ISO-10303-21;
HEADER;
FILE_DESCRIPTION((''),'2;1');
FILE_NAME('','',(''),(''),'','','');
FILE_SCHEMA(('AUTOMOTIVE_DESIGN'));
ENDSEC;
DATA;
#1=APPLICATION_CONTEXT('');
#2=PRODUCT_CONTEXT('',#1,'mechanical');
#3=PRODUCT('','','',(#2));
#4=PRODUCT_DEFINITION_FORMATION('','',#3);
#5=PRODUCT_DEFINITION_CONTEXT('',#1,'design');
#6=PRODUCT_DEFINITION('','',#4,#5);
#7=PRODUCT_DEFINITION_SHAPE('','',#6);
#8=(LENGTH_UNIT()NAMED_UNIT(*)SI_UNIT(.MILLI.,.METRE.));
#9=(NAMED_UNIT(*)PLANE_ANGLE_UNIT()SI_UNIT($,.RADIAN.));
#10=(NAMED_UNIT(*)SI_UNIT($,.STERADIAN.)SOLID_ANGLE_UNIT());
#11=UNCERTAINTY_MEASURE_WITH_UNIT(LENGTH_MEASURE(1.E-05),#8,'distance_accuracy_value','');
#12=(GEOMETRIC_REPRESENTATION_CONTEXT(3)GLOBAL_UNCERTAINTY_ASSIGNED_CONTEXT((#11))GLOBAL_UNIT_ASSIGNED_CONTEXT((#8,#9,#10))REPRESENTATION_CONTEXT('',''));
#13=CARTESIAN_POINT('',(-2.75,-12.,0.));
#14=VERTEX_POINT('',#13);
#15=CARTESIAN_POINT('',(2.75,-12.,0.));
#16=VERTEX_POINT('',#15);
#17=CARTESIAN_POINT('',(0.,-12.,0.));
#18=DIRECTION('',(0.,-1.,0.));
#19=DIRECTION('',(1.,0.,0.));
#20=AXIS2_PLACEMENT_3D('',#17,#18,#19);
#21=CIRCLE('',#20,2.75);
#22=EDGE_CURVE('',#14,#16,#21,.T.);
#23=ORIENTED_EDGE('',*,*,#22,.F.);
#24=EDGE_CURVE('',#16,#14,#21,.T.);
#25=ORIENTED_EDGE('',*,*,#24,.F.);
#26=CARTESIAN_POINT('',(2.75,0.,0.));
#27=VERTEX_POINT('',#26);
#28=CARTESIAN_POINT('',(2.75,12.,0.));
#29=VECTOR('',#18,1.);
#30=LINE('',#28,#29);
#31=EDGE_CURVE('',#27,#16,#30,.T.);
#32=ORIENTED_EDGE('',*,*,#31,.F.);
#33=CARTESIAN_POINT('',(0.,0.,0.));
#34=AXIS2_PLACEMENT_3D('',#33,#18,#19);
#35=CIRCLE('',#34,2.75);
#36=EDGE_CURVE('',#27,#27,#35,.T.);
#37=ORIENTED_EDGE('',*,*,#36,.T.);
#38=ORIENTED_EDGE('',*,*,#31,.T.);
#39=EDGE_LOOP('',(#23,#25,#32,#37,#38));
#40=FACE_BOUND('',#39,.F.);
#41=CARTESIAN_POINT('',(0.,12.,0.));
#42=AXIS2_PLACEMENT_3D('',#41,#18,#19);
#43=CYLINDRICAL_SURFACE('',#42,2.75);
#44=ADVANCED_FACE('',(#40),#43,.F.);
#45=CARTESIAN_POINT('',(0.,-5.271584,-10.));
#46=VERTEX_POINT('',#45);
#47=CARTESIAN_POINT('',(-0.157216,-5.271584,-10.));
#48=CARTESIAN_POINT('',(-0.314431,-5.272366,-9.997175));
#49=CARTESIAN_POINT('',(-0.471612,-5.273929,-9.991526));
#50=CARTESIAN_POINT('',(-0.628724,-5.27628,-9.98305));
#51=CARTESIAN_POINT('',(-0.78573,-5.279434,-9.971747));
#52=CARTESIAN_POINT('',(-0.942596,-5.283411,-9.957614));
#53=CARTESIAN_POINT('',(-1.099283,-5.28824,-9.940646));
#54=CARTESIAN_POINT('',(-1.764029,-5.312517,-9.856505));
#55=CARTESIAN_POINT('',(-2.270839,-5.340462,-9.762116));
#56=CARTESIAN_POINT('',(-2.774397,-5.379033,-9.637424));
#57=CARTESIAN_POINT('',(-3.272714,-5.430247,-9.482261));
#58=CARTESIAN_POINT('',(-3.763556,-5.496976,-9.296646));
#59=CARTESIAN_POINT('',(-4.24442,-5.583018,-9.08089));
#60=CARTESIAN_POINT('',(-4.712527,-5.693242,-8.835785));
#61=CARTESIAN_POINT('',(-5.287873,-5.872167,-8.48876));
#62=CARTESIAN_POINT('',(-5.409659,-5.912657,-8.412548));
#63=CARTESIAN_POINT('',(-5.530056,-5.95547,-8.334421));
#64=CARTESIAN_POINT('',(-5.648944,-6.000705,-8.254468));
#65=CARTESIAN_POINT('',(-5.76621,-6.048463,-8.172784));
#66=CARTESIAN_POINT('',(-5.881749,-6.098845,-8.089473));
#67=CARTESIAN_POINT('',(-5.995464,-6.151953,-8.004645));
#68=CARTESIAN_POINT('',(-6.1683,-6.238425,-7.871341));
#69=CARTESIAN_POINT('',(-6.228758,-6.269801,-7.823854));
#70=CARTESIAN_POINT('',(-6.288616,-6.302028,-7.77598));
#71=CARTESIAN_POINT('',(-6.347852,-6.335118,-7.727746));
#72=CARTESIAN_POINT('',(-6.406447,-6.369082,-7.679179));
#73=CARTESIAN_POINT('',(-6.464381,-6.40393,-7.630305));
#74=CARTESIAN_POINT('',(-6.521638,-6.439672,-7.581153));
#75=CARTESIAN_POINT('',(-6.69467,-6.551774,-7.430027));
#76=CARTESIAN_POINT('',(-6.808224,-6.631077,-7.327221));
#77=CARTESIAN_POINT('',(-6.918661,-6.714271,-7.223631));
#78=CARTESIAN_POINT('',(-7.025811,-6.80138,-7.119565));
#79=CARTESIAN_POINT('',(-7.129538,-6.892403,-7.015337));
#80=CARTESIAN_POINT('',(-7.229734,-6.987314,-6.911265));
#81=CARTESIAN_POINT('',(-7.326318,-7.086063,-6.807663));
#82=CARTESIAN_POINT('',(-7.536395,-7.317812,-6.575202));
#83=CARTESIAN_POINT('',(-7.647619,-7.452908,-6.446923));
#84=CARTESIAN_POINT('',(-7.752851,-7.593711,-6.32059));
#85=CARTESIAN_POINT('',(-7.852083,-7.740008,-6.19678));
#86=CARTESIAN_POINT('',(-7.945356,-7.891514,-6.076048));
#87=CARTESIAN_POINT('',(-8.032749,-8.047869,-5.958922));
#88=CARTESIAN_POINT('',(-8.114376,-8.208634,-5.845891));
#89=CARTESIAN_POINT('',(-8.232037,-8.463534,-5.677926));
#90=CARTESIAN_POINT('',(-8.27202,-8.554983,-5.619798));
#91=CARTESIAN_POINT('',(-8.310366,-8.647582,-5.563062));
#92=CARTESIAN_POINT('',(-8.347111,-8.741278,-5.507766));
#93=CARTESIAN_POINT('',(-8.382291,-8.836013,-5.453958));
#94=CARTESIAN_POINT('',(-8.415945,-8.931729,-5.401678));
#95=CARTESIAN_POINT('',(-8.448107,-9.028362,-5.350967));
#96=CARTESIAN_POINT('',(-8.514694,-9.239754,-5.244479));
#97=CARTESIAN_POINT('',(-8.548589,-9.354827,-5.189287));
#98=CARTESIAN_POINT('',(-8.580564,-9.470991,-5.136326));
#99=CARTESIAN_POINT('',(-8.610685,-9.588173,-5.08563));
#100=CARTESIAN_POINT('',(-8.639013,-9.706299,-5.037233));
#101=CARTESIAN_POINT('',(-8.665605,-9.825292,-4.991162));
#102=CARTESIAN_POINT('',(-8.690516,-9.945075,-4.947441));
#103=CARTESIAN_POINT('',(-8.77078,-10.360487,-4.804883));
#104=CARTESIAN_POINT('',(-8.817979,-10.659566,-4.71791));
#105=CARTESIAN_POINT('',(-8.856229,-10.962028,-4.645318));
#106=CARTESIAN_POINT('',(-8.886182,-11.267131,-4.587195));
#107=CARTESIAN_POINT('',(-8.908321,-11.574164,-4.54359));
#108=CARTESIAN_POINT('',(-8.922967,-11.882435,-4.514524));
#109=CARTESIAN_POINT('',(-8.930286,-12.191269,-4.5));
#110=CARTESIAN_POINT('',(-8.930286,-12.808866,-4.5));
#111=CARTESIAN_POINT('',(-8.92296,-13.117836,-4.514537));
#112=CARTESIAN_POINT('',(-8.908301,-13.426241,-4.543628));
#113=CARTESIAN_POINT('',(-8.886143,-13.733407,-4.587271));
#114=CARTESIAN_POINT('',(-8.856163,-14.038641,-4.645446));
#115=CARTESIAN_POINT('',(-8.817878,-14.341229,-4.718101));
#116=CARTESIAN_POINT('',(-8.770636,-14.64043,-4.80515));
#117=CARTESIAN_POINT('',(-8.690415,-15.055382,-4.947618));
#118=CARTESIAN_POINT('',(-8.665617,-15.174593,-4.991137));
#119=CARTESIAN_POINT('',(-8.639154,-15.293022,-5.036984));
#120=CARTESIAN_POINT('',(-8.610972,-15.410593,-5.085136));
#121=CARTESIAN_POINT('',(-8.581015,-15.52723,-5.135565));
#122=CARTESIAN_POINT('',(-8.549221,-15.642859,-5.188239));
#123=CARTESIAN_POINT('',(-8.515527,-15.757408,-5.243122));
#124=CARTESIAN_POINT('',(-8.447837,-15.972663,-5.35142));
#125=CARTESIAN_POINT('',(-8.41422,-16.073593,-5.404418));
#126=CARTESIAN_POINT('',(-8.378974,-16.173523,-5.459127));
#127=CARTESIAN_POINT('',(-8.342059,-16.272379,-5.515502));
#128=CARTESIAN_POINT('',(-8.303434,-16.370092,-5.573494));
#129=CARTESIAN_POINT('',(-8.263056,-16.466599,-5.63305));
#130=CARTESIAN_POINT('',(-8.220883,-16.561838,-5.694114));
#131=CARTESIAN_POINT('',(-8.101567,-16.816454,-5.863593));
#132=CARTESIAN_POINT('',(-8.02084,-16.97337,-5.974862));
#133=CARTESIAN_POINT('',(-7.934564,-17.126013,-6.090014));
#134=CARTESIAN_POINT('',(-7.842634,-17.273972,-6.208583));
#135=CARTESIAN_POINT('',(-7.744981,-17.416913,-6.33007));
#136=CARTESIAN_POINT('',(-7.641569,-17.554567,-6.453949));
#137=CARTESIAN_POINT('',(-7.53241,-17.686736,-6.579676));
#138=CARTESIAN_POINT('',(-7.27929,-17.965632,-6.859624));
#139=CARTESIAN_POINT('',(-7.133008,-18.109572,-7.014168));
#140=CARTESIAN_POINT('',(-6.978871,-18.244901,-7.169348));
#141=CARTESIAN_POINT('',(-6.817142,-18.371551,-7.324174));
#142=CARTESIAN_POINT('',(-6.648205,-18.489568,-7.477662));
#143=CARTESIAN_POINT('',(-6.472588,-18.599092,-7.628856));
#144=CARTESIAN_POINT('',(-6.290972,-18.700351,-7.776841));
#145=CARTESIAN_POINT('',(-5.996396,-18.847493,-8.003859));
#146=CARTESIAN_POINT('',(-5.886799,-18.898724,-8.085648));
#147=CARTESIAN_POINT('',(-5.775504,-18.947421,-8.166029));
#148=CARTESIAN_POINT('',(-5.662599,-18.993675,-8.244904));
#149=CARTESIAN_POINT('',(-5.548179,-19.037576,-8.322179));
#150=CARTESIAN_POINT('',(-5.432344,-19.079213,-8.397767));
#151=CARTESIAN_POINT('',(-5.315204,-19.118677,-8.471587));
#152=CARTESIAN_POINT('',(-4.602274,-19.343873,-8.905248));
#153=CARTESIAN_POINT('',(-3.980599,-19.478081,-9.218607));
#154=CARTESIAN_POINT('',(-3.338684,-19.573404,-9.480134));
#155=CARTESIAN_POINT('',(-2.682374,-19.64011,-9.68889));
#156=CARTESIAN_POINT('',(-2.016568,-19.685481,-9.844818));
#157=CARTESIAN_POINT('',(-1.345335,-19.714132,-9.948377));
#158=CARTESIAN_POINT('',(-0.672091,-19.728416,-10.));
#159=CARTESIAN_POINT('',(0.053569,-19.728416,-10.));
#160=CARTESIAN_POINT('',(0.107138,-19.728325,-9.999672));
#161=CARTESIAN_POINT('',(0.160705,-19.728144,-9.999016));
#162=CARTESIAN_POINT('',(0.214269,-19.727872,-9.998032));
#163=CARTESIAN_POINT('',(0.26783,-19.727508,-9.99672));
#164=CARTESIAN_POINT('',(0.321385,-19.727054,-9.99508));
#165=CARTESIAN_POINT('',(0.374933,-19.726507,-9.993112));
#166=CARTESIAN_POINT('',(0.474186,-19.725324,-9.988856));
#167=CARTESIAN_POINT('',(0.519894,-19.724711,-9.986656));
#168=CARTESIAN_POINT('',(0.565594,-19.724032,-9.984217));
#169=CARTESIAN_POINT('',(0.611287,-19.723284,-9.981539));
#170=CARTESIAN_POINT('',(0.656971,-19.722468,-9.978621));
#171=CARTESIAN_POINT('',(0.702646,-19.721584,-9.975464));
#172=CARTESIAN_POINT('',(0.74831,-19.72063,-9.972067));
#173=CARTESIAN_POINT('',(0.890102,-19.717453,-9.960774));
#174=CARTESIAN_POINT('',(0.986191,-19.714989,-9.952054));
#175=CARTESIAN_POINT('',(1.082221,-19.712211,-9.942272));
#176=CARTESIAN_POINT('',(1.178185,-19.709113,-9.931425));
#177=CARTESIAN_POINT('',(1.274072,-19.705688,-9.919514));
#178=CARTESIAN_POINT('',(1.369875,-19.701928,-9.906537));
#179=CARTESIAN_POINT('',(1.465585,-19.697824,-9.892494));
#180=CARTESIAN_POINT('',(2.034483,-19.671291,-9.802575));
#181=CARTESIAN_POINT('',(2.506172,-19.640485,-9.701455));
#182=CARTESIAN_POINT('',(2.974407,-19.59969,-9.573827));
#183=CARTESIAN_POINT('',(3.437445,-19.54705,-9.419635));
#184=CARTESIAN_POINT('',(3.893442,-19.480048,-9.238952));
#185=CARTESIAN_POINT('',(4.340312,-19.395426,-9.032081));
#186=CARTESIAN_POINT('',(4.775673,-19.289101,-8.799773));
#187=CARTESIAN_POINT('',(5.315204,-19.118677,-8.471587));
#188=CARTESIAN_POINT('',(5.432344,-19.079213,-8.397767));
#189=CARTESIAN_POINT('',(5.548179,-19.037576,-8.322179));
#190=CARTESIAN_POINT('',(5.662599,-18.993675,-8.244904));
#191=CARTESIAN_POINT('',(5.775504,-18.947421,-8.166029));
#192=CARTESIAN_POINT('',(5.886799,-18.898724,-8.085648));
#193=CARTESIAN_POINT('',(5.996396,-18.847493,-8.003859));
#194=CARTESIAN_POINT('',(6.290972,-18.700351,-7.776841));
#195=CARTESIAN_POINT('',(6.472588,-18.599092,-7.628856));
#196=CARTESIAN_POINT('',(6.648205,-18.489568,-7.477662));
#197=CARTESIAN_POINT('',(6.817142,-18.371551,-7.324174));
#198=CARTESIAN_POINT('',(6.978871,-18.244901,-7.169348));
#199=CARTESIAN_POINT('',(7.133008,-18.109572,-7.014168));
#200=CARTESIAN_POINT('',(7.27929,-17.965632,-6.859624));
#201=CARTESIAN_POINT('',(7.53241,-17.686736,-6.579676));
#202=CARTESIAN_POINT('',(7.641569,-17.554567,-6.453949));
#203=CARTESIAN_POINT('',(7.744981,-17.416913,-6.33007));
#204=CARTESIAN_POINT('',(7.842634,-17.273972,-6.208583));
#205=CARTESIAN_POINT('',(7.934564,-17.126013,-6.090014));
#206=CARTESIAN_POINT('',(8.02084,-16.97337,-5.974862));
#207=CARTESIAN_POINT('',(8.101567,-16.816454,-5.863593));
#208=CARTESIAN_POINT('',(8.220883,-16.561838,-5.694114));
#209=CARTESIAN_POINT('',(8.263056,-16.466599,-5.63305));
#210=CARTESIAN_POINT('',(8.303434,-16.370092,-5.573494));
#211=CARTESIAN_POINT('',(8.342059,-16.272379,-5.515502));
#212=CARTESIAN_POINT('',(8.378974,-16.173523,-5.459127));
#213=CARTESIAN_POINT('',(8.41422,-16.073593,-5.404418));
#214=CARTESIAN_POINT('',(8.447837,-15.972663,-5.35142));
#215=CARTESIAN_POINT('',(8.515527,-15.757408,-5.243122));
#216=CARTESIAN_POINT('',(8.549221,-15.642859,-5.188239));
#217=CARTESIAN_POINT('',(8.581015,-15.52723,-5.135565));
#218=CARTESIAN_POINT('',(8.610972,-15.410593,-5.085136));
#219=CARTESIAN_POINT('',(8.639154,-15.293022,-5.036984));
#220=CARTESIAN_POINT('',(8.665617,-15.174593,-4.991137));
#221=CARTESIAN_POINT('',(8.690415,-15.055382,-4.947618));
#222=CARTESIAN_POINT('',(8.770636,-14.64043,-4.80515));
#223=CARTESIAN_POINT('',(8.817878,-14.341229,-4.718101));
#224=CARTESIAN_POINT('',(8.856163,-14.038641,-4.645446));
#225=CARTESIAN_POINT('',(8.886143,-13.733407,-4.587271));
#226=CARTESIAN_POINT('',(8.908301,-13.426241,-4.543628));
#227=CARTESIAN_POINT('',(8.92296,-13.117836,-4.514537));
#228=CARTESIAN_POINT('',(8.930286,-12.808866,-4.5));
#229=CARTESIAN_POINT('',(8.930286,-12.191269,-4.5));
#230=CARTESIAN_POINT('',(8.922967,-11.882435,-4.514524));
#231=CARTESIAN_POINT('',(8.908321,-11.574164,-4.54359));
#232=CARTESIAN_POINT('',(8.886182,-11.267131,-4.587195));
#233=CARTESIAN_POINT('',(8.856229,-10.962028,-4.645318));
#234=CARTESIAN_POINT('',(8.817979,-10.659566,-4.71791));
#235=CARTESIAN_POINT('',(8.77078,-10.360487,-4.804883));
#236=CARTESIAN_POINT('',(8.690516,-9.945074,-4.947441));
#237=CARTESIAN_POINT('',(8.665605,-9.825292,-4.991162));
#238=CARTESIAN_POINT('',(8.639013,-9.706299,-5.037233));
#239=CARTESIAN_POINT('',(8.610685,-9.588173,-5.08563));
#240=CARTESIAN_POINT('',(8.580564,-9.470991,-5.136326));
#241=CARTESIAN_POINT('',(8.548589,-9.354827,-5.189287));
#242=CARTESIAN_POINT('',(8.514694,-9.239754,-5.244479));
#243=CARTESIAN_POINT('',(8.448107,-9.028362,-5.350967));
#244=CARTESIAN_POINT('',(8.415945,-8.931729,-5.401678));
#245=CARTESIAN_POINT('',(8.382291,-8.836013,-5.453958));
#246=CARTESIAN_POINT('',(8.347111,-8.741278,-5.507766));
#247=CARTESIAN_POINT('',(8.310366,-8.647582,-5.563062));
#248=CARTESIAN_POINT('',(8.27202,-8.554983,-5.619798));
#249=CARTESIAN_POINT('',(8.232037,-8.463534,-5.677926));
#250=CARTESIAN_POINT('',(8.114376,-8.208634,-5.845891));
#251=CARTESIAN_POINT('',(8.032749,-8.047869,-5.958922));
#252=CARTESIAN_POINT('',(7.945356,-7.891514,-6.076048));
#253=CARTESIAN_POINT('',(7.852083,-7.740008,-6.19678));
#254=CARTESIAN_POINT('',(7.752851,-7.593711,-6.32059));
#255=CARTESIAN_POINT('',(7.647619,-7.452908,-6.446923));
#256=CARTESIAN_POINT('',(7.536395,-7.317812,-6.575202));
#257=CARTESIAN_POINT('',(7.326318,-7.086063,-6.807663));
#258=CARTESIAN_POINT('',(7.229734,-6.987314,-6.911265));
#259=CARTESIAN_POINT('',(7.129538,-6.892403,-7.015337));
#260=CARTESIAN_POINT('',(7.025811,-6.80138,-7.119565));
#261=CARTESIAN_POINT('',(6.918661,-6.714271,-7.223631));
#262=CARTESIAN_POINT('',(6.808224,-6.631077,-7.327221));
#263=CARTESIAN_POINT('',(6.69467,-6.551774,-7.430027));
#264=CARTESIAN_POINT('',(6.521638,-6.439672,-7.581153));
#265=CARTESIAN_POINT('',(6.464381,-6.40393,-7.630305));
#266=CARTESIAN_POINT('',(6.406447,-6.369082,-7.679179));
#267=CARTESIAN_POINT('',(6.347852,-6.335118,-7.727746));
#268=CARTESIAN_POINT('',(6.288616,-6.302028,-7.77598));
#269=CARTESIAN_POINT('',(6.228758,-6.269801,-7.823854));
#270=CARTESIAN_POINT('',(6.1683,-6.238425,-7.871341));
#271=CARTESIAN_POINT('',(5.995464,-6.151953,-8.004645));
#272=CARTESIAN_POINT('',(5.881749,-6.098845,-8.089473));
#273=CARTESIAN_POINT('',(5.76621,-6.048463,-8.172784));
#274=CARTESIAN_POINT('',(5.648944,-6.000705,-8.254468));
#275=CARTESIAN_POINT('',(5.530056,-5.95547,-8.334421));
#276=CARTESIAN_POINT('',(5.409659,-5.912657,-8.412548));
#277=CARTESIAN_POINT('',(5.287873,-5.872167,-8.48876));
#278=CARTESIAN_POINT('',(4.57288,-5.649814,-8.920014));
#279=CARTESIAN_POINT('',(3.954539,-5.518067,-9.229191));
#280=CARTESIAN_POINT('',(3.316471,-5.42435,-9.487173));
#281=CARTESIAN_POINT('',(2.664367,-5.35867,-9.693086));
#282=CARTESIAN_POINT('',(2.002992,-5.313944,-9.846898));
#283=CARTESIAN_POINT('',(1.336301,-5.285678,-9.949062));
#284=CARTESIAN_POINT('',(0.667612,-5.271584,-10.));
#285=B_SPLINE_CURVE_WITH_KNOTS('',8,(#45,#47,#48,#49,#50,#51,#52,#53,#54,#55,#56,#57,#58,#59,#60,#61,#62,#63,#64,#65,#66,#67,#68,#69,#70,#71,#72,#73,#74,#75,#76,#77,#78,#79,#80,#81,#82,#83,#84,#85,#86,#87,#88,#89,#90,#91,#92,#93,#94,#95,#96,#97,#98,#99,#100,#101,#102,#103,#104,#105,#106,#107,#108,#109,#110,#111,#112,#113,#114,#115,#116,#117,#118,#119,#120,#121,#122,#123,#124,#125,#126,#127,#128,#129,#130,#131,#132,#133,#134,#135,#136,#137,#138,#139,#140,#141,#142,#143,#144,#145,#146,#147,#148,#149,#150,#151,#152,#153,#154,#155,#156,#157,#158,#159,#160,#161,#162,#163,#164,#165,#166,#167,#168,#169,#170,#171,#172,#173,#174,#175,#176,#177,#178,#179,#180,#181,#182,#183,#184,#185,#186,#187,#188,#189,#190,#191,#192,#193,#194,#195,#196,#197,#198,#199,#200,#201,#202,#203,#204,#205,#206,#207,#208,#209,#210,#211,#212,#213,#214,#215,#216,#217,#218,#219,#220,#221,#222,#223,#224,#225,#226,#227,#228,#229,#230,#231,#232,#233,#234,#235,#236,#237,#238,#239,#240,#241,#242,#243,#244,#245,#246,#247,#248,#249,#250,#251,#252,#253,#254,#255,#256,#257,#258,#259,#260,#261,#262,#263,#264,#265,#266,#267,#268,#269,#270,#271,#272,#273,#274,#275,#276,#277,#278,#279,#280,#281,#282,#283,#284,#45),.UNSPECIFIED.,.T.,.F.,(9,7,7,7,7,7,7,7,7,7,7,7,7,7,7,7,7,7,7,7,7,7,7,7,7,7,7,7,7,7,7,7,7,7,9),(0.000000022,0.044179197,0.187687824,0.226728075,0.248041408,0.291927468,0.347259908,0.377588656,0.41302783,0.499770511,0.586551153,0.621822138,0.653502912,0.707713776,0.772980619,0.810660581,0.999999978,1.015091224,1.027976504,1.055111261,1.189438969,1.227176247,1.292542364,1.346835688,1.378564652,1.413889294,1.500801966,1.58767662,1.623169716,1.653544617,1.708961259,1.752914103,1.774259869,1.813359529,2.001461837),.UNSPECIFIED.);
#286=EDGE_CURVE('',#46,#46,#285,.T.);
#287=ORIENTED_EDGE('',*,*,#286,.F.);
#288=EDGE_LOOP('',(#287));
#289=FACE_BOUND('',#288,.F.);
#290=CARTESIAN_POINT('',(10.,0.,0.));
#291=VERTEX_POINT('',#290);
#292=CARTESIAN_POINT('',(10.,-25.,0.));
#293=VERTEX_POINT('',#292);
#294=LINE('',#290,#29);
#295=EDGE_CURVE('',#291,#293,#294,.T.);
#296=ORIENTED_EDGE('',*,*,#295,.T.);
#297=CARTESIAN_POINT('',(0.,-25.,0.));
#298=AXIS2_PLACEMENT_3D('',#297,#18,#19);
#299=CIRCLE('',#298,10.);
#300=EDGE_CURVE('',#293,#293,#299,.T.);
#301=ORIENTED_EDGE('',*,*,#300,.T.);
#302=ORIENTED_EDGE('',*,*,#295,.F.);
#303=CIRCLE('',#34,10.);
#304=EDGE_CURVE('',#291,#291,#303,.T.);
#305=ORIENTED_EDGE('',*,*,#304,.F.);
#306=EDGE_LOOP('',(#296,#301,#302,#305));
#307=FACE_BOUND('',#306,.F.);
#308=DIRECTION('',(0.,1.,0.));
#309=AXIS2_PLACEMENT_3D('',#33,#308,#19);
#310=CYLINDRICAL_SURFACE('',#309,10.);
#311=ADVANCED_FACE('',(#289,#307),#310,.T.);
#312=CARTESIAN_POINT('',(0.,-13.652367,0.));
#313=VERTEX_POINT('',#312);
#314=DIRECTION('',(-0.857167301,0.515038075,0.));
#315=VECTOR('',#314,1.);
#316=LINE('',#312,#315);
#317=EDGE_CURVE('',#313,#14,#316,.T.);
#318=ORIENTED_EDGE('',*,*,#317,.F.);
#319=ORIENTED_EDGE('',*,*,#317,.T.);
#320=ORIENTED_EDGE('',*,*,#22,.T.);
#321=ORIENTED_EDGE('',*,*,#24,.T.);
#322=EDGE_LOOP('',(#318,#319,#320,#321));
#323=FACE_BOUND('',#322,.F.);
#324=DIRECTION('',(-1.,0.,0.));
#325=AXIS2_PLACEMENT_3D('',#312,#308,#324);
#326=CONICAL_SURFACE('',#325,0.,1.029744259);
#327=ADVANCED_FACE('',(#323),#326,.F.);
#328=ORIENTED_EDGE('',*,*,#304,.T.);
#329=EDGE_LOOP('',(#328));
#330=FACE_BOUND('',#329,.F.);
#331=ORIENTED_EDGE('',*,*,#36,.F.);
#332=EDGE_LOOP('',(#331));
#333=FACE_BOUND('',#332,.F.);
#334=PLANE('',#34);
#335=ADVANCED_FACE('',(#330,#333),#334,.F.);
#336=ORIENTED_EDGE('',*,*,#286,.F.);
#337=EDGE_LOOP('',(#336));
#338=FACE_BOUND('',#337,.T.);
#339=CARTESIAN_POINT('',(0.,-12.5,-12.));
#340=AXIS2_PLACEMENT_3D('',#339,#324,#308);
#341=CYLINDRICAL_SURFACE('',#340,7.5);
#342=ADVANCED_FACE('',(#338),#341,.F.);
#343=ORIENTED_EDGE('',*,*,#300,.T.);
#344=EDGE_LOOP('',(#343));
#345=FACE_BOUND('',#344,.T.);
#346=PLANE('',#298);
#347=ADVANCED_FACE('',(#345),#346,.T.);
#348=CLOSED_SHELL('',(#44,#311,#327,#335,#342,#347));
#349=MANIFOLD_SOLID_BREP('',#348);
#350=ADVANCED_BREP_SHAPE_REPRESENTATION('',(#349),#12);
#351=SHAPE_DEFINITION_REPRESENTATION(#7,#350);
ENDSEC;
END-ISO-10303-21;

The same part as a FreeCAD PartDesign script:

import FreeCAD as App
import Part
import Sketcher

V = App.Vector

doc = App.newDocument("Part")
body = doc.addObject("PartDesign::Body", "Body")

# Sketch on XZ plane
sketch1 = body.newObject("Sketcher::SketchObject", "Sketch")
sketch1.AttachmentSupport = (doc.getObject("XZ_Plane"), [""])
sketch1.MapMode = "FlatFace"
sketch1.addGeometry(Part.Circle(V(0, 0, 0), V(0, 0, 1), 10), False)
sketch1.addConstraint([
    Sketcher.Constraint("Coincident", 0, 3, -1, 1),
    Sketcher.Constraint("Diameter", 0, 20.0),
])
pad1 = body.newObject("PartDesign::Pad", "Pad")
pad1.Profile = sketch1
pad1.Length = 25

# Sketch on YZ plane
sketch2 = body.newObject("Sketcher::SketchObject", "Sketch001")
sketch2.AttachmentSupport = (doc.getObject("YZ_Plane"), [""])
sketch2.MapMode = "FlatFace"
sketch2.addGeometry(Part.Circle(V(-12, -12, 0), V(0, 0, 1), 8), False)
sketch2.addConstraint([
    Sketcher.Constraint("Diameter", 0, 15.0),
    Sketcher.Constraint("DistanceY", 0, 3, -1, 1, 12.0),
    Sketcher.Constraint("DistanceX", 0, 3, -1, 1, 12.5),
])
pocket1 = body.newObject("PartDesign::Pocket", "Pocket")
pocket1.Profile = sketch2
pocket1.Type = "ThroughAll"
pocket1.Midplane = True

# Sketch on XZ plane
sketch3 = body.newObject("Sketcher::SketchObject", "Sketch002")
sketch3.AttachmentSupport = (doc.getObject("XZ_Plane"), [""])
sketch3.MapMode = "FlatFace"
sketch3.addGeometry(Part.Circle(V(0, 0, 0), V(0, 0, 1), 2.8), False)
sketch3.addConstraint([
    Sketcher.Constraint("Coincident", 0, 3, -1, 1),
    Sketcher.Constraint("Diameter", 0, 5.5),
])
doc.recompute()
hole = body.newObject("PartDesign::Hole", "Hole")
hole.Profile = sketch3
hole.ThreadType = "None"
hole.Diameter = 5.5
hole.DepthType = "Dimension"
hole.Depth = 12
hole.DrillPoint = "Angled"
hole.DrillPointAngle = 118
hole.Reversed = True

doc.recompute()
